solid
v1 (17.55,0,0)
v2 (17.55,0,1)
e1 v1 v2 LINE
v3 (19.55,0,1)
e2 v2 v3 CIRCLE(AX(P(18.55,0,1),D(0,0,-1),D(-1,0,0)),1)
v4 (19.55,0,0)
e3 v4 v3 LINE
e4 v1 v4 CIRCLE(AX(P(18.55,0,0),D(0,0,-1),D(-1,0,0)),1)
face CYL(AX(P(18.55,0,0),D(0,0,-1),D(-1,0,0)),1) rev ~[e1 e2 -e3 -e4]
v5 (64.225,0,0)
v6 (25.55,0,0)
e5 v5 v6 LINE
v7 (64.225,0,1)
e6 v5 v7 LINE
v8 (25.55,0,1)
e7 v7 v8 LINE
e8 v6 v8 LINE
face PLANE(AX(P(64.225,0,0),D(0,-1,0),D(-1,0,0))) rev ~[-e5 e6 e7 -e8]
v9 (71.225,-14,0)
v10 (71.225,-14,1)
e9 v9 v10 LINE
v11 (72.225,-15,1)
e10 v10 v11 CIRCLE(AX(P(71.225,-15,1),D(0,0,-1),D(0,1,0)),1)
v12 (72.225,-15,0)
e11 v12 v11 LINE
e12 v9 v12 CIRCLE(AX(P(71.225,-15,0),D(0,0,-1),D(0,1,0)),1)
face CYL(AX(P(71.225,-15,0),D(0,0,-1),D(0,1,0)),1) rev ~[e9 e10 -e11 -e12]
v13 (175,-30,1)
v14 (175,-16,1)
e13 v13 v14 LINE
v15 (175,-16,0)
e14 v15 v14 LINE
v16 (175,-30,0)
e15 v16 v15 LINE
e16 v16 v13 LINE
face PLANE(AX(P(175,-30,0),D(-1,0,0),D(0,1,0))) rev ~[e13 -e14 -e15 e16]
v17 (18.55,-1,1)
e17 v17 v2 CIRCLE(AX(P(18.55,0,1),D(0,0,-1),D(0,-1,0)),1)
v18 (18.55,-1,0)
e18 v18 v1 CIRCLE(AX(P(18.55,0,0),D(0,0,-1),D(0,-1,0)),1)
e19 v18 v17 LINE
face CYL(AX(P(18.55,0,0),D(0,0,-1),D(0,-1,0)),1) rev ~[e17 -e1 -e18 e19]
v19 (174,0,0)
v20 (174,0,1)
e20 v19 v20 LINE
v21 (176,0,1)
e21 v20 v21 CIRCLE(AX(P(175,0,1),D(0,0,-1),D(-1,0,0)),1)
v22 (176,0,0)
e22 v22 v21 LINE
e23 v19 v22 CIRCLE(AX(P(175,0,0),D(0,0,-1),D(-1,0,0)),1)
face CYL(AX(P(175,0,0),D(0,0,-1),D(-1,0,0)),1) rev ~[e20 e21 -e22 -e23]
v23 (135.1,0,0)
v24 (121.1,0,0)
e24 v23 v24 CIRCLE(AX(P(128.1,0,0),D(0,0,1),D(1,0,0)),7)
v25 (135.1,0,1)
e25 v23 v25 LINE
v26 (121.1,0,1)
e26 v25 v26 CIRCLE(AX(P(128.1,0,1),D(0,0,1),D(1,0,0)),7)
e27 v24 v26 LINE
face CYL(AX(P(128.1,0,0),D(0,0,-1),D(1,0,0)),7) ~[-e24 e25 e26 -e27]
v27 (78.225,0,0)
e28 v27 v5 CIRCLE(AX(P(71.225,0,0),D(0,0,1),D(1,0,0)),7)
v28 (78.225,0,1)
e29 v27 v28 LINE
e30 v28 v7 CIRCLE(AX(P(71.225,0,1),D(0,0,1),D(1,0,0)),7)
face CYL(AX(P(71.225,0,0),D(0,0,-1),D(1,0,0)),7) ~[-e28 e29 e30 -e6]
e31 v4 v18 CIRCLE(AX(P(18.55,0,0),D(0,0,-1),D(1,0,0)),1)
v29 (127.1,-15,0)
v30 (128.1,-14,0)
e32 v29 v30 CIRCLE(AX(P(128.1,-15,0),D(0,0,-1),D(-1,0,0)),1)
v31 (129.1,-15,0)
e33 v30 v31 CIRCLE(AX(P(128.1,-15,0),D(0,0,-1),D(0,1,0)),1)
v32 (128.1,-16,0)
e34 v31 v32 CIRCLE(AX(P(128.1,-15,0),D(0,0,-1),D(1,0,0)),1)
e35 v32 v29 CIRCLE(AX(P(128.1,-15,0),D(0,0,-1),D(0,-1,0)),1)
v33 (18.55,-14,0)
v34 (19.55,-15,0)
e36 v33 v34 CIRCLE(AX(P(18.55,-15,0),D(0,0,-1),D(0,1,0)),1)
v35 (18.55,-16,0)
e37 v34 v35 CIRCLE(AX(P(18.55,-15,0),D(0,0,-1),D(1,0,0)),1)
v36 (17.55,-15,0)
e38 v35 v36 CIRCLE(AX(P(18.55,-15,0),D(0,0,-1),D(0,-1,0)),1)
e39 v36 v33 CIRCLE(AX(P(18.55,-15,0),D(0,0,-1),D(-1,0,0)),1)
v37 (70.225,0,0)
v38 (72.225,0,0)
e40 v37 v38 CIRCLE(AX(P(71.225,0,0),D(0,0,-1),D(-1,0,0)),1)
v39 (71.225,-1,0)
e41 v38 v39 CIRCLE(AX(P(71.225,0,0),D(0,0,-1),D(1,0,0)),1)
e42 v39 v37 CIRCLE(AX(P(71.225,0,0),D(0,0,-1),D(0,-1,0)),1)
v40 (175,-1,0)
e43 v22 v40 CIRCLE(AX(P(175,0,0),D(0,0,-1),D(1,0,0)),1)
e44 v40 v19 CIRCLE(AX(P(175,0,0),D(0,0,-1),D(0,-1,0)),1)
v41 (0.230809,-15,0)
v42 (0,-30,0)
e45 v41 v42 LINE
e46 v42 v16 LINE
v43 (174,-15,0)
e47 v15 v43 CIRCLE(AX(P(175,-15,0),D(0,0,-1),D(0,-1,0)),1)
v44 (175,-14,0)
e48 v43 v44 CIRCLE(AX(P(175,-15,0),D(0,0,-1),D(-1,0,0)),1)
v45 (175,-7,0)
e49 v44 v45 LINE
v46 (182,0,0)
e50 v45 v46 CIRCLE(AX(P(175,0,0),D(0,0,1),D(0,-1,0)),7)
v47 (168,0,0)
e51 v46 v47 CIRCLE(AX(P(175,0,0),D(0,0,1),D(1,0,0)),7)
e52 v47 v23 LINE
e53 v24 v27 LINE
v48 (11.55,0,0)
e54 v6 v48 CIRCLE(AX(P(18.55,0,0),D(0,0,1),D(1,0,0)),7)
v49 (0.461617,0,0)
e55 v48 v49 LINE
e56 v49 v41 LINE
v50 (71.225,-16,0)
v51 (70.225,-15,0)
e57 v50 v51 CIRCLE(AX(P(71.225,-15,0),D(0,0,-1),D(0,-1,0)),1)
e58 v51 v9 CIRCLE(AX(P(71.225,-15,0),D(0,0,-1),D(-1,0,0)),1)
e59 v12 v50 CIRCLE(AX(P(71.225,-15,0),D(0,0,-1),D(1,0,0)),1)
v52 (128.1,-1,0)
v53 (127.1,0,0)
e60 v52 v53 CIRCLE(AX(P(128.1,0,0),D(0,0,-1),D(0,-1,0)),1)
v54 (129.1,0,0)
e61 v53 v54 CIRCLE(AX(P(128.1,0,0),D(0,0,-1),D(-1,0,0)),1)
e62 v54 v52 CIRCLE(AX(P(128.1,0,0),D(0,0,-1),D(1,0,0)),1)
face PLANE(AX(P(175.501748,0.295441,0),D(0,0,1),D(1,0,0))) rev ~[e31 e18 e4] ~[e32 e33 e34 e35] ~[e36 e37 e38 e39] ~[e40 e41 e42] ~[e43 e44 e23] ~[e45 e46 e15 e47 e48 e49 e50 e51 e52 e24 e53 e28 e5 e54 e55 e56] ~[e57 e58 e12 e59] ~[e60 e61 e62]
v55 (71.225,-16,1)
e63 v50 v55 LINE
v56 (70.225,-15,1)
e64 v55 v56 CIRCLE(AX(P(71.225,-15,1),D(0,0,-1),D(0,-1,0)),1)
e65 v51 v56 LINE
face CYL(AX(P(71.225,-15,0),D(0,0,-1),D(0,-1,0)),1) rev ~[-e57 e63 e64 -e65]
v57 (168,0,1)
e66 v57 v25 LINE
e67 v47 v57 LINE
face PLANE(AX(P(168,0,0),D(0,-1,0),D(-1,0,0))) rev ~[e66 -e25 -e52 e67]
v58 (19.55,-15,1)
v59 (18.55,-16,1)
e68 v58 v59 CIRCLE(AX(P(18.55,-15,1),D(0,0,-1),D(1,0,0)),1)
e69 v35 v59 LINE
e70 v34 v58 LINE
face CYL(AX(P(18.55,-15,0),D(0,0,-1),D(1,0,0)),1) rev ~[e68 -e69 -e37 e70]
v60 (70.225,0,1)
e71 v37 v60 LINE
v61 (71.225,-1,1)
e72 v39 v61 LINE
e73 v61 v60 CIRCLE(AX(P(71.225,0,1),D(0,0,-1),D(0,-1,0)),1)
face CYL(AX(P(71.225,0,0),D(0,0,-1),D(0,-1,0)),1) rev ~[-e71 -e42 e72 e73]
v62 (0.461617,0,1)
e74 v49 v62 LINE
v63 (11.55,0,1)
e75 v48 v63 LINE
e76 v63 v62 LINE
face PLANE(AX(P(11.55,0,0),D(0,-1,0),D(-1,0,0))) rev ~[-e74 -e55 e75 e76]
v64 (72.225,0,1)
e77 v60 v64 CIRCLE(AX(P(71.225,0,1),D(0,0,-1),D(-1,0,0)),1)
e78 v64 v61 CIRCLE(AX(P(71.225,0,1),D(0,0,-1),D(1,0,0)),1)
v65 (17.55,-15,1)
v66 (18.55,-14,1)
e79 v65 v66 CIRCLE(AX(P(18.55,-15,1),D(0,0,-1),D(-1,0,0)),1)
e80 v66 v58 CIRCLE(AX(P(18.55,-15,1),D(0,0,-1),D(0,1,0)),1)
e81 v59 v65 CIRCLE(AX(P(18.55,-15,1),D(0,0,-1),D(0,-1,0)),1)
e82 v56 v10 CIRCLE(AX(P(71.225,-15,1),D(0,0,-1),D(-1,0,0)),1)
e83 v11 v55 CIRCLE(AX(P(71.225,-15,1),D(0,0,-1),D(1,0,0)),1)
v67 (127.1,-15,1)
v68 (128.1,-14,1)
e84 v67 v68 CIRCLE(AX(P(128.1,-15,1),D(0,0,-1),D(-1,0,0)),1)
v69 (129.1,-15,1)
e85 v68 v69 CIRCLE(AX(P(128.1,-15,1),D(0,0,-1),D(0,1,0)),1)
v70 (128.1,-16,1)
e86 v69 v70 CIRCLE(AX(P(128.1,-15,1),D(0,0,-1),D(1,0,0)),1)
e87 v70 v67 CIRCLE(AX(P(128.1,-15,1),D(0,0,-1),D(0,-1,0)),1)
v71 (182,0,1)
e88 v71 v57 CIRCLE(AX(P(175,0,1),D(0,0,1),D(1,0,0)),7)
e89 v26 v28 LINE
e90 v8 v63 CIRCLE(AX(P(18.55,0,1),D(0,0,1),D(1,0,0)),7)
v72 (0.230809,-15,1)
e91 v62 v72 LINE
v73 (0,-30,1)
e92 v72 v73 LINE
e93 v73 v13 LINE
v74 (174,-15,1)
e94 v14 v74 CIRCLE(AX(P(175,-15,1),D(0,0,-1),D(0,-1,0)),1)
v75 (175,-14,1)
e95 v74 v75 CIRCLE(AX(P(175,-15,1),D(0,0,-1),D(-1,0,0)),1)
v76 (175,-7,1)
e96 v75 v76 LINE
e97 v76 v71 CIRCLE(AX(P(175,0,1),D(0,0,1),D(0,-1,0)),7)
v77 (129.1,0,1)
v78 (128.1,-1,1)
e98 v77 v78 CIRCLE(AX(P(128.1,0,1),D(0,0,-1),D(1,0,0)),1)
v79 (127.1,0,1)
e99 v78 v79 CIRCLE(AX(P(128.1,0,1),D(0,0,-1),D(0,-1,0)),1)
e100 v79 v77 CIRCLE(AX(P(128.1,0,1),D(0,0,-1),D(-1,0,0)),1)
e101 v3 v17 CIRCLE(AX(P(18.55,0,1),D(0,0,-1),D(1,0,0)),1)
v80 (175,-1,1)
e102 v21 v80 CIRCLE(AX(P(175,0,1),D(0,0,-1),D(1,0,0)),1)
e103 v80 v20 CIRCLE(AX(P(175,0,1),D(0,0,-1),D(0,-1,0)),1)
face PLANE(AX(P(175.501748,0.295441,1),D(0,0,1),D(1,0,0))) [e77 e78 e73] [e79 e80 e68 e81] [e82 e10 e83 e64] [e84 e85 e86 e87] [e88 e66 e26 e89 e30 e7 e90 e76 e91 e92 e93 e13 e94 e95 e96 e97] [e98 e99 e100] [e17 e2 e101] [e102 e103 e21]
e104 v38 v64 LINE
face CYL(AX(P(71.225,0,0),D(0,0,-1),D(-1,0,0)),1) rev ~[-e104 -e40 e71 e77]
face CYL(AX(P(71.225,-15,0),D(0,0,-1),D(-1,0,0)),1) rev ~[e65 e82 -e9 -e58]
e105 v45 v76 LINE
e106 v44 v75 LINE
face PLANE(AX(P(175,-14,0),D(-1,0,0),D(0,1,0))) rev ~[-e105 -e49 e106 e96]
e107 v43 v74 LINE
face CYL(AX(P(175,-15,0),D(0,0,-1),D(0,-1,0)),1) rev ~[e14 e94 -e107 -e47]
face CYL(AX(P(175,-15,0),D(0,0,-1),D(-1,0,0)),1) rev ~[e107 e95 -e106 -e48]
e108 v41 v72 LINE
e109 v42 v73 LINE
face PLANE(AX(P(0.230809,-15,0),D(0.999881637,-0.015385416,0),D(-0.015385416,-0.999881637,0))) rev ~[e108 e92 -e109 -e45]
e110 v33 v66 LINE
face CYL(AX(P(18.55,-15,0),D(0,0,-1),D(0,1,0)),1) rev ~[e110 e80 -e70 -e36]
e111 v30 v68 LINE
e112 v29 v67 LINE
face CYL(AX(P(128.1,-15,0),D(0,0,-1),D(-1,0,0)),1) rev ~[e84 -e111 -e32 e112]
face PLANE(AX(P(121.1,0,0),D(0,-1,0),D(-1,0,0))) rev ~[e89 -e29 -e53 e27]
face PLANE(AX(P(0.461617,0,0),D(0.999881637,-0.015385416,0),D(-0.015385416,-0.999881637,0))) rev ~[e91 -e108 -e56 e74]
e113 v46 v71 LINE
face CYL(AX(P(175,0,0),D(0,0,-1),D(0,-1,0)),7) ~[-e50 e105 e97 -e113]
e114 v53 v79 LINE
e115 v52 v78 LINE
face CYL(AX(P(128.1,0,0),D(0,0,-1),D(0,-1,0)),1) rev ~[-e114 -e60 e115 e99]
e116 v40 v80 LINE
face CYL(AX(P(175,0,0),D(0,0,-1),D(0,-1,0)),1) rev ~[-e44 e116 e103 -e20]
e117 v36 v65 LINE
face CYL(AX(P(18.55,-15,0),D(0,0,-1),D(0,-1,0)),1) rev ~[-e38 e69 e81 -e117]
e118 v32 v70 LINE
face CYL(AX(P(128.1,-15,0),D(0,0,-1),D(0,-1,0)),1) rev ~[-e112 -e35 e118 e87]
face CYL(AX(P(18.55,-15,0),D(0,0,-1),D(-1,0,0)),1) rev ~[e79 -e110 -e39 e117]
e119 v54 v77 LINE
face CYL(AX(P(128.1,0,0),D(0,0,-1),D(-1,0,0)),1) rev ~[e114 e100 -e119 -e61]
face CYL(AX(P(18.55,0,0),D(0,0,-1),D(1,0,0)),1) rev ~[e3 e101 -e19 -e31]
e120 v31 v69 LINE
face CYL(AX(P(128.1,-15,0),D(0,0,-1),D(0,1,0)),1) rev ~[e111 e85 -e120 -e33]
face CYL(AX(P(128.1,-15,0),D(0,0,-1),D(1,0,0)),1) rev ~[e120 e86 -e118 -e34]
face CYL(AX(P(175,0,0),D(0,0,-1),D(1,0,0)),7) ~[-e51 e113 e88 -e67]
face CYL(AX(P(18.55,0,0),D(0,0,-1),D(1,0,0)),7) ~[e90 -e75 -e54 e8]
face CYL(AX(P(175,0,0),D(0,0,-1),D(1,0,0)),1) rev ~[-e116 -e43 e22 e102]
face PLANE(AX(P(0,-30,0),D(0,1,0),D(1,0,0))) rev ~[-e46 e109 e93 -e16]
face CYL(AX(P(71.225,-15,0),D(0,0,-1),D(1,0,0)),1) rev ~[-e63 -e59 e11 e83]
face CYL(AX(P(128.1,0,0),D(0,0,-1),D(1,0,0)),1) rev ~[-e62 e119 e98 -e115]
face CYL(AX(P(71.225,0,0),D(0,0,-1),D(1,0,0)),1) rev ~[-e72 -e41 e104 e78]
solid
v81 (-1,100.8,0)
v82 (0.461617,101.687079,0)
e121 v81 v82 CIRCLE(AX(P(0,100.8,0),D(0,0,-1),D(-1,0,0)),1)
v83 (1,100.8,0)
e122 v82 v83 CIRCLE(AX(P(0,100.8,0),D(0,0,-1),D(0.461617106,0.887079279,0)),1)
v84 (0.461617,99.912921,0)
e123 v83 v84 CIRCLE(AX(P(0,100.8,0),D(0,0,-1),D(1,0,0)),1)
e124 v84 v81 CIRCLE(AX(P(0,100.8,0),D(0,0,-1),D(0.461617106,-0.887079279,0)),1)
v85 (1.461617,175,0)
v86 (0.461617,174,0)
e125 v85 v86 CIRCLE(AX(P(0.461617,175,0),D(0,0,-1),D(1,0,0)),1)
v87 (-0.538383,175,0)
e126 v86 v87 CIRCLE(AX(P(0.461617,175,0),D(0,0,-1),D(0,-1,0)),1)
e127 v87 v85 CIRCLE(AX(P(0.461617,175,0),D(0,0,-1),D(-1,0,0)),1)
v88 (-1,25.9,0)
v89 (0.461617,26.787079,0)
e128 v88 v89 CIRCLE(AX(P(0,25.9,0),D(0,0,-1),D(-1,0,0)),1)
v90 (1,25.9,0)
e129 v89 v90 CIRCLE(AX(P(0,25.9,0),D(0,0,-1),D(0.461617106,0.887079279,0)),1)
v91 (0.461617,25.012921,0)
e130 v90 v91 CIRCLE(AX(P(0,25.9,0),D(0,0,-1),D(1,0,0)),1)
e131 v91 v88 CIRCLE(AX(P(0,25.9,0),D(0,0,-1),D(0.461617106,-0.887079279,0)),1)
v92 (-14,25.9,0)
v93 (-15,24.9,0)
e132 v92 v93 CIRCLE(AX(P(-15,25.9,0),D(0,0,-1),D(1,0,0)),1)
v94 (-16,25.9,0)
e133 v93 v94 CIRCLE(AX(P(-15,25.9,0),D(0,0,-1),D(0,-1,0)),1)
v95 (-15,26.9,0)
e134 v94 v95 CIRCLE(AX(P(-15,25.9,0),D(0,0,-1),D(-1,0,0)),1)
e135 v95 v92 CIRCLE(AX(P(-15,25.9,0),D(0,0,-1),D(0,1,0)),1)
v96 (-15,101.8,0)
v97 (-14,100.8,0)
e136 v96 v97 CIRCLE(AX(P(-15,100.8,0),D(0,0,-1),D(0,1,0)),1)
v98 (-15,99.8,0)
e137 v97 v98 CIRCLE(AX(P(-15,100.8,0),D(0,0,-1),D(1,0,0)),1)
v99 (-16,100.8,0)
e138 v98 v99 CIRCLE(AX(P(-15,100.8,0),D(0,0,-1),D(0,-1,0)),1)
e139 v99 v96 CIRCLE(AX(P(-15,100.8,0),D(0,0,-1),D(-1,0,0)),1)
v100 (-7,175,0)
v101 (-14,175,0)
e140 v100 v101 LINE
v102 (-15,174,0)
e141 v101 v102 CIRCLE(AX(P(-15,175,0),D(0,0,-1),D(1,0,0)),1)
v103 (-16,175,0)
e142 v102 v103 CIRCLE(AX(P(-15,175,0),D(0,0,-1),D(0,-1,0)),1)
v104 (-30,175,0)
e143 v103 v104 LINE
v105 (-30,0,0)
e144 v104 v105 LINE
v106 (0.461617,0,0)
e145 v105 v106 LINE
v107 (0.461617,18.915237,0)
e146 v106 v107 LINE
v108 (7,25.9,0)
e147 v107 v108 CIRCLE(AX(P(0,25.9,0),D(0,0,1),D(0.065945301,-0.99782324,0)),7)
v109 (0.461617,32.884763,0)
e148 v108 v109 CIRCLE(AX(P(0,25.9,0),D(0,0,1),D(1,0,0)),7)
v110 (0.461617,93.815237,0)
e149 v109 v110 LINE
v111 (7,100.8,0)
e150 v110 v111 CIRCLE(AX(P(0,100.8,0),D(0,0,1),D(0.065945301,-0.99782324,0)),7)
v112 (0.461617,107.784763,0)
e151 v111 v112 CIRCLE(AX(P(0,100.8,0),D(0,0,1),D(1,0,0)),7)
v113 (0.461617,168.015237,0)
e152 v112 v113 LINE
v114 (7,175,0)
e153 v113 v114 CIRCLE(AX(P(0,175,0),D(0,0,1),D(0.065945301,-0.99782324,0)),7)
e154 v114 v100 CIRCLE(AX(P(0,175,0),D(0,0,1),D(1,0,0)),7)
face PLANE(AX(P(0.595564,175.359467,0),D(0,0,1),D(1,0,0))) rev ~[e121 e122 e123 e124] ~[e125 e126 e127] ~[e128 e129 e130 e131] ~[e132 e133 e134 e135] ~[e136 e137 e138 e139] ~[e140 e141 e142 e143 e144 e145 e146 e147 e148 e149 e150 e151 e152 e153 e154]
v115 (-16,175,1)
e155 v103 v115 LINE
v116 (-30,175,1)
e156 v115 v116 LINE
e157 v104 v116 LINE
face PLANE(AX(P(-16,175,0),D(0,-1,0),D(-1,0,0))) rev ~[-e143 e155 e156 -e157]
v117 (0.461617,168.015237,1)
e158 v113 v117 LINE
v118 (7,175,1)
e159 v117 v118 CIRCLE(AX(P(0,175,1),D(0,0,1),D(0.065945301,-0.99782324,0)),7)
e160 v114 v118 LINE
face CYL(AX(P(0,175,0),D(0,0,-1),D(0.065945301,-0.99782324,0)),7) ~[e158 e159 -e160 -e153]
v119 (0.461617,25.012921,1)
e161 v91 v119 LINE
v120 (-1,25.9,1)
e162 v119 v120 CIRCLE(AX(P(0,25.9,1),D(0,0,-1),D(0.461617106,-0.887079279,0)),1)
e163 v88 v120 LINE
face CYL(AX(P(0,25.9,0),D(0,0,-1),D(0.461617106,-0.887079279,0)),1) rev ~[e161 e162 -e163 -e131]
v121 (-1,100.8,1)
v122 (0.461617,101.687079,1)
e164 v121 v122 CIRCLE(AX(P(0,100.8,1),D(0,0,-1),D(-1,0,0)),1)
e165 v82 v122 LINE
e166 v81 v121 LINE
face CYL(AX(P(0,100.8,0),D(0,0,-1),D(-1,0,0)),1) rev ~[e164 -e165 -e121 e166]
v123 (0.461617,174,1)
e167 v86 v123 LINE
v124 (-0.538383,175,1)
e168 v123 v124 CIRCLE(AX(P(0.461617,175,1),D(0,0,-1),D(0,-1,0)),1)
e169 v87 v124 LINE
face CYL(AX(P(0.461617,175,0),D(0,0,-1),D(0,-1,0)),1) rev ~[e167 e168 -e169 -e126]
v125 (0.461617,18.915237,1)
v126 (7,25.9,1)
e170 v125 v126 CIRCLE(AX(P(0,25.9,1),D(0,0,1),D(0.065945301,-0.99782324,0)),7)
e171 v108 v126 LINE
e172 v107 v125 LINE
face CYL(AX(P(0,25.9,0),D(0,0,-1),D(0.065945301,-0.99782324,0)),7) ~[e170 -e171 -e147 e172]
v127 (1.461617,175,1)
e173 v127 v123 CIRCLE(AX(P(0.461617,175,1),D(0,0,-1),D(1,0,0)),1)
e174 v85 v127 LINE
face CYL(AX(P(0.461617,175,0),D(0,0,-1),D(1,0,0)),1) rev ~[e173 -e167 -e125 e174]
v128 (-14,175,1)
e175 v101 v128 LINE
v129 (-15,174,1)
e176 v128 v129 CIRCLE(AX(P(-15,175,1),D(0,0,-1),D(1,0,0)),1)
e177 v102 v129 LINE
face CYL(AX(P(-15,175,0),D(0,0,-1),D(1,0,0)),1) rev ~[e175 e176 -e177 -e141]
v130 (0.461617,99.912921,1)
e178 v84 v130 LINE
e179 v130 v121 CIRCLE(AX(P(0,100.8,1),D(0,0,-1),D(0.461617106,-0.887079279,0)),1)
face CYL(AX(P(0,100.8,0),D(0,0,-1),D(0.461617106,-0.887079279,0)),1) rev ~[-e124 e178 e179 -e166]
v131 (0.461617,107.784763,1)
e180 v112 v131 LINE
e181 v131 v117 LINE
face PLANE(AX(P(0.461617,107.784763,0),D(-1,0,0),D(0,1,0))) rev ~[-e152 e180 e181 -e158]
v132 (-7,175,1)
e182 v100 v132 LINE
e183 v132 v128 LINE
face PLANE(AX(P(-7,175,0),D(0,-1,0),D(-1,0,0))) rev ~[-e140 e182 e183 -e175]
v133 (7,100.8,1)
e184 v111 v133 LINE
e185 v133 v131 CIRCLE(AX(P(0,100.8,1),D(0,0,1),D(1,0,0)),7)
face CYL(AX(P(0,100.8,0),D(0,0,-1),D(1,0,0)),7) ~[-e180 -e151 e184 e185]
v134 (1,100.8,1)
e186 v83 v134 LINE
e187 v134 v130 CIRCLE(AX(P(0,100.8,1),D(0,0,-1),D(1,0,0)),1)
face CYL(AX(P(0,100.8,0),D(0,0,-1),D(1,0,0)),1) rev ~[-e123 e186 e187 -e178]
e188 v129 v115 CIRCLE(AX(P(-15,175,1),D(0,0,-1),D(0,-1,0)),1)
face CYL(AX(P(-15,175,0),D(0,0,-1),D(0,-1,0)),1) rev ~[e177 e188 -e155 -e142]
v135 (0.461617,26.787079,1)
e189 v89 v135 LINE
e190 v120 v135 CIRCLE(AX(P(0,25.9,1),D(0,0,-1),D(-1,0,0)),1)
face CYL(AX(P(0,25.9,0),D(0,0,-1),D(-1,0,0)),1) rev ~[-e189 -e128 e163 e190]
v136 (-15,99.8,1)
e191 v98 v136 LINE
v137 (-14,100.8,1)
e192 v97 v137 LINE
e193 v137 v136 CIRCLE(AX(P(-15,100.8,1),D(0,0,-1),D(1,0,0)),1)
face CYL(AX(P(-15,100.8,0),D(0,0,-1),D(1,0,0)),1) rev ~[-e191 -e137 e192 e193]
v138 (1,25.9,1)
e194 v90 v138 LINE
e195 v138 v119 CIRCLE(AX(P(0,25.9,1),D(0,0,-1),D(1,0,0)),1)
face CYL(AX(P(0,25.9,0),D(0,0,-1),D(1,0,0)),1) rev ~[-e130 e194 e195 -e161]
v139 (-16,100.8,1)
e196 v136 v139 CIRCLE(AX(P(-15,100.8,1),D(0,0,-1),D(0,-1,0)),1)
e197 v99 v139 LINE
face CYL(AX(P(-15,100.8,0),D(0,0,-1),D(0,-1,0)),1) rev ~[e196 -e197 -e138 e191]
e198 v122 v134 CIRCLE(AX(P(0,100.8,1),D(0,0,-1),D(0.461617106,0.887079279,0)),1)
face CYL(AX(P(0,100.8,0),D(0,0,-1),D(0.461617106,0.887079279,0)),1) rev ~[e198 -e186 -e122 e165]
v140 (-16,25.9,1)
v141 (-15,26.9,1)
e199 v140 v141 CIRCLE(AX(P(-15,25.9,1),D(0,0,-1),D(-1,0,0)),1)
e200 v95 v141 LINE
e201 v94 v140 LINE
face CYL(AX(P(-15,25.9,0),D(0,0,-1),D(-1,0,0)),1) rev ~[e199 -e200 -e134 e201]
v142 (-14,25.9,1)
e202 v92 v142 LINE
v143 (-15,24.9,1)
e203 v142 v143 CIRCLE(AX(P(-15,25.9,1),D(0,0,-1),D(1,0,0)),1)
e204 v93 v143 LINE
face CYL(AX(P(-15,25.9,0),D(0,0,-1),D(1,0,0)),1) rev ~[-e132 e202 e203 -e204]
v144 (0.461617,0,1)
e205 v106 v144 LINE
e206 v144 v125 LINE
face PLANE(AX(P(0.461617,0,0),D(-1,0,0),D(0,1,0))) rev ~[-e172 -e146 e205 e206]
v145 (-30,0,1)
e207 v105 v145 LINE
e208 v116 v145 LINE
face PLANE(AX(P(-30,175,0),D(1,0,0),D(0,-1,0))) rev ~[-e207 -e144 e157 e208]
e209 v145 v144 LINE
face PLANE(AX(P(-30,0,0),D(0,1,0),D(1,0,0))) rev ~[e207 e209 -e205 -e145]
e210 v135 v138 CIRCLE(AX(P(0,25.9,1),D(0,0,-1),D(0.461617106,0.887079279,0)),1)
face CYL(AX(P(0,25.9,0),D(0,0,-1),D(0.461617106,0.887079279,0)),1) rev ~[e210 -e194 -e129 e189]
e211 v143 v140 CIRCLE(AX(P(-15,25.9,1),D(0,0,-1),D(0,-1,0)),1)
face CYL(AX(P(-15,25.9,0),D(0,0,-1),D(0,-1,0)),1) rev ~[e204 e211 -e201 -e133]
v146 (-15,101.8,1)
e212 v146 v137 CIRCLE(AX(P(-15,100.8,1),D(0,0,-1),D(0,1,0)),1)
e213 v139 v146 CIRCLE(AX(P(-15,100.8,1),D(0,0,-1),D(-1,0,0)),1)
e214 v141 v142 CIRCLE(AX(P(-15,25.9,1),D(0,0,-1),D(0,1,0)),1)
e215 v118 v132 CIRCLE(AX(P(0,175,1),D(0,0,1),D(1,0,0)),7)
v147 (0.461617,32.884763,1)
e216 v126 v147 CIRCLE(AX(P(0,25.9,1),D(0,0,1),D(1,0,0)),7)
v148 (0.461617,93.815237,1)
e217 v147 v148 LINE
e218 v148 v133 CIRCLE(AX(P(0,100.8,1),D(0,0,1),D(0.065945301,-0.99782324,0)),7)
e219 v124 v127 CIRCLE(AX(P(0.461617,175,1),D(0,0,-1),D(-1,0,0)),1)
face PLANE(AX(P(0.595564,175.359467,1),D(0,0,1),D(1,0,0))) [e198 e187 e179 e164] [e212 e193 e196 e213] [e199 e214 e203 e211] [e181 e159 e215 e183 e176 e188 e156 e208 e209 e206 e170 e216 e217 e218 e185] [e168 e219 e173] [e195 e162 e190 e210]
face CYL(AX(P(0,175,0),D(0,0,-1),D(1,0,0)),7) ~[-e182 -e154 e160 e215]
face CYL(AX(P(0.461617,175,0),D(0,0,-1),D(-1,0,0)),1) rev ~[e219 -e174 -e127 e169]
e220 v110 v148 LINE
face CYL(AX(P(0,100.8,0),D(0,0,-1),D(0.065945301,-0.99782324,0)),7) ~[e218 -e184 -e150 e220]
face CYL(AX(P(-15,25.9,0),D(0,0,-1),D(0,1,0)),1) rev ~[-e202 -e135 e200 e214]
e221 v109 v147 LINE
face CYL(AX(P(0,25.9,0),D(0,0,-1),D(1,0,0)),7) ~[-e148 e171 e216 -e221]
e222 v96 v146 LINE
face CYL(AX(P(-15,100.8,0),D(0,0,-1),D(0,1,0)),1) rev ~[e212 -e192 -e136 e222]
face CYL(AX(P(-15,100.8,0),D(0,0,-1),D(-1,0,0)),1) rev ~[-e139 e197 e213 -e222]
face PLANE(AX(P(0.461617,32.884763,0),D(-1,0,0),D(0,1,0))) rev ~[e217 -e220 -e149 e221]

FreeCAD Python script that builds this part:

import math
import FreeCAD as App
import Part
import Sketcher
from FreeCAD import Vector
Q = App.Units.Quantity

doc = App.newDocument("Part")
body = doc.addObject("PartDesign::Body", "Body")

# Sketch on XY plane
sketch1 = body.newObject("Sketcher::SketchObject", "Sketch")
sketch1.AttachmentSupport = (doc.getObject("XY_Plane"), [""])
sketch1.MapMode = "FlatFace"
sketch1.addGeometry([
    Part.ArcOfCircle(Part.Circle(Vector(175, 0, 0), Vector(0, 0, 1), 7), math.radians(0), math.radians(180)),  # 0
    Part.LineSegment(Vector(168, 0, 0), Vector(135.1, 0, 0)),  # 1
    Part.ArcOfCircle(Part.Circle(Vector(128.1, 0, 0), Vector(0, 0, 1), 7), math.radians(0), math.radians(180)),  # 2
    Part.LineSegment(Vector(121.1, 0, 0), Vector(78.2, 0, 0)),  # 3
    Part.ArcOfCircle(Part.Circle(Vector(71.2, 0, 0), Vector(0, 0, 1), 7), math.radians(0), math.radians(180)),  # 4
    Part.LineSegment(Vector(64.2, 0, 0), Vector(25.6, 0, 0)),  # 5
    Part.ArcOfCircle(Part.Circle(Vector(18.6, 0, 0), Vector(0, 0, 1), 7), math.radians(0), math.radians(180)),  # 6
    Part.LineSegment(Vector(11.6, 0, 0), Vector(0.5, 0, 0)),  # 7
    Part.LineSegment(Vector(0.5, 0, 0), Vector(0.2, -15, 0)),  # 8
    Part.LineSegment(Vector(0.2, -15, 0), Vector(0, -30, 0)),  # 9
    Part.LineSegment(Vector(0, -30, 0), Vector(175, -30, 0)),  # 10
    Part.LineSegment(Vector(175, -30, 0), Vector(175, -16, 0)),  # 11
    Part.ArcOfCircle(Part.Circle(Vector(175, -15, 0), Vector(0, 0, 1), 1), math.radians(180), math.radians(270)),  # 12
    Part.ArcOfCircle(Part.Circle(Vector(175, -15, 0), Vector(0, 0, 1), 1), math.radians(90), math.radians(180)),  # 13
    Part.LineSegment(Vector(175, -14, 0), Vector(175, -7, 0)),  # 14
    Part.ArcOfCircle(Part.Circle(Vector(175, 0, 0), Vector(0, 0, 1), 7), math.radians(-90), math.radians(0)),  # 15
    Part.ArcOfCircle(Part.Circle(Vector(128.1, -15, 0), Vector(0, 0, 1), 1), math.radians(0), math.radians(90)),  # 16
    Part.ArcOfCircle(Part.Circle(Vector(128.1, -15, 0), Vector(0, 0, 1), 1), math.radians(-90), math.radians(0)),  # 17
    Part.ArcOfCircle(Part.Circle(Vector(128.1, -15, 0), Vector(0, 0, 1), 1), math.radians(180), math.radians(270)),  # 18
    Part.ArcOfCircle(Part.Circle(Vector(128.1, -15, 0), Vector(0, 0, 1), 1), math.radians(90), math.radians(180)),  # 19
    Part.ArcOfCircle(Part.Circle(Vector(71.2, -15, 0), Vector(0, 0, 1), 1), math.radians(-90), math.radians(0)),  # 20
    Part.ArcOfCircle(Part.Circle(Vector(71.2, -15, 0), Vector(0, 0, 1), 1), math.radians(180), math.radians(270)),  # 21
    Part.ArcOfCircle(Part.Circle(Vector(71.2, -15, 0), Vector(0, 0, 1), 1), math.radians(90), math.radians(180)),  # 22
    Part.ArcOfCircle(Part.Circle(Vector(71.2, -15, 0), Vector(0, 0, 1), 1), math.radians(0), math.radians(90)),  # 23
    Part.ArcOfCircle(Part.Circle(Vector(18.6, -15, 0), Vector(0, 0, 1), 1), math.radians(-90), math.radians(0)),  # 24
    Part.ArcOfCircle(Part.Circle(Vector(18.6, -15, 0), Vector(0, 0, 1), 1), math.radians(180), math.radians(270)),  # 25
    Part.ArcOfCircle(Part.Circle(Vector(18.6, -15, 0), Vector(0, 0, 1), 1), math.radians(90), math.radians(180)),  # 26
    Part.ArcOfCircle(Part.Circle(Vector(18.6, -15, 0), Vector(0, 0, 1), 1), math.radians(0), math.radians(90)),  # 27
    Part.ArcOfCircle(Part.Circle(Vector(175, 0, 0), Vector(0, 0, 1), 1), math.radians(0), math.radians(180)),  # 28
    Part.ArcOfCircle(Part.Circle(Vector(175, 0, 0), Vector(0, 0, 1), 1), math.radians(-90), math.radians(0)),  # 29
    Part.ArcOfCircle(Part.Circle(Vector(175, 0, 0), Vector(0, 0, 1), 1), math.radians(180), math.radians(270)),  # 30
    Part.ArcOfCircle(Part.Circle(Vector(128.1, 0, 0), Vector(0, 0, 1), 1), math.radians(-90), math.radians(0)),  # 31
    Part.ArcOfCircle(Part.Circle(Vector(128.1, 0, 0), Vector(0, 0, 1), 1), math.radians(180), math.radians(270)),  # 32
    Part.ArcOfCircle(Part.Circle(Vector(128.1, 0, 0), Vector(0, 0, 1), 1), math.radians(0), math.radians(180)),  # 33
    Part.ArcOfCircle(Part.Circle(Vector(18.6, 0, 0), Vector(0, 0, 1), 1), math.radians(-90), math.radians(0)),  # 34
    Part.ArcOfCircle(Part.Circle(Vector(18.6, 0, 0), Vector(0, 0, 1), 1), math.radians(180), math.radians(270)),  # 35
    Part.ArcOfCircle(Part.Circle(Vector(18.6, 0, 0), Vector(0, 0, 1), 1), math.radians(0), math.radians(180)),  # 36
    Part.ArcOfCircle(Part.Circle(Vector(71.2, 0, 0), Vector(0, 0, 1), 1), math.radians(-90), math.radians(0)),  # 37
    Part.ArcOfCircle(Part.Circle(Vector(71.2, 0, 0), Vector(0, 0, 1), 1), math.radians(180), math.radians(270)),  # 38
    Part.ArcOfCircle(Part.Circle(Vector(71.2, 0, 0), Vector(0, 0, 1), 1), math.radians(0), math.radians(180)),  # 39
], False)
sketch1.addConstraint([
    Sketcher.Constraint("Coincident", 0, 2, 1, 1),
    Sketcher.Constraint("Coincident", 1, 2, 2, 1),
    Sketcher.Constraint("Coincident", 2, 2, 3, 1),
    Sketcher.Constraint("Coincident", 3, 2, 4, 1),
    Sketcher.Constraint("Coincident", 4, 2, 5, 1),
    Sketcher.Constraint("Coincident", 5, 2, 6, 1),
    Sketcher.Constraint("Coincident", 6, 2, 7, 1),
    Sketcher.Constraint("Coincident", 7, 2, 8, 1),
    Sketcher.Constraint("Coincident", 8, 2, 9, 1),
    Sketcher.Constraint("Coincident", 9, 2, 10, 1),
    Sketcher.Constraint("Coincident", 10, 2, 11, 1),
    Sketcher.Constraint("Coincident", 11, 2, 12, 2),
    Sketcher.Constraint("Tangent", 12, 1, 13, 2),
    Sketcher.Constraint("Coincident", 13, 1, 14, 1),
    Sketcher.Constraint("Coincident", 14, 2, 15, 1),
    Sketcher.Constraint("Tangent", 15, 2, 0, 1),
    Sketcher.Constraint("Tangent", 16, 1, 17, 2),
    Sketcher.Constraint("Tangent", 17, 1, 18, 2),
    Sketcher.Constraint("Tangent", 18, 1, 19, 2),
    Sketcher.Constraint("Tangent", 19, 1, 16, 2),
    Sketcher.Constraint("Tangent", 20, 1, 21, 2),
    Sketcher.Constraint("Tangent", 21, 1, 22, 2),
    Sketcher.Constraint("Tangent", 22, 1, 23, 2),
    Sketcher.Constraint("Tangent", 23, 1, 20, 2),
    Sketcher.Constraint("Tangent", 24, 1, 25, 2),
    Sketcher.Constraint("Tangent", 25, 1, 26, 2),
    Sketcher.Constraint("Tangent", 26, 1, 27, 2),
    Sketcher.Constraint("Tangent", 27, 1, 24, 2),
    Sketcher.Constraint("Tangent", 28, 1, 29, 2),
    Sketcher.Constraint("Tangent", 29, 1, 30, 2),
    Sketcher.Constraint("Tangent", 30, 1, 28, 2),
    Sketcher.Constraint("Tangent", 31, 1, 32, 2),
    Sketcher.Constraint("Tangent", 32, 1, 33, 2),
    Sketcher.Constraint("Tangent", 33, 1, 31, 2),
    Sketcher.Constraint("Tangent", 34, 1, 35, 2),
    Sketcher.Constraint("Tangent", 35, 1, 36, 2),
    Sketcher.Constraint("Tangent", 36, 1, 34, 2),
    Sketcher.Constraint("Tangent", 37, 1, 38, 2),
    Sketcher.Constraint("Tangent", 38, 1, 39, 2),
    Sketcher.Constraint("Tangent", 39, 1, 37, 2),
    Sketcher.Constraint("Horizontal", 1),
    Sketcher.Constraint("Horizontal", 3),
    Sketcher.Constraint("Horizontal", 5),
    Sketcher.Constraint("Horizontal", 7),
    Sketcher.Constraint("Horizontal", 10),
    Sketcher.Constraint("Vertical", 11),
    Sketcher.Constraint("Vertical", 14),
    Sketcher.Constraint("Coincident", 28, 3, 0, 3),
    Sketcher.Constraint("Coincident", 31, 3, 2, 3),
    Sketcher.Constraint("Coincident", 34, 3, 6, 3),
    Sketcher.Constraint("Coincident", 37, 3, 4, 3),
    Sketcher.Constraint("Equal", 0, 2),
    Sketcher.Constraint("Equal", 2, 4),
    Sketcher.Constraint("Equal", 4, 6),
    Sketcher.Constraint("Equal", 12, 13),
    Sketcher.Constraint("Equal", 6, 15),
    Sketcher.Constraint("Equal", 13, 16),
    Sketcher.Constraint("Equal", 16, 17),
    Sketcher.Constraint("Equal", 19, 20),
    Sketcher.Constraint("Equal", 20, 21),
    Sketcher.Constraint("Equal", 23, 24),
    Sketcher.Constraint("Equal", 24, 25),
    Sketcher.Constraint("Equal", 27, 28),
    Sketcher.Constraint("Equal", 30, 31),
    Sketcher.Constraint("Equal", 33, 34),
    Sketcher.Constraint("Equal", 36, 37),
    Sketcher.Constraint("PointOnObject", 0, 3, -1),
    Sketcher.Constraint("PointOnObject", 2, 3, -1),
    Sketcher.Constraint("PointOnObject", 4, 3, -1),
    Sketcher.Constraint("PointOnObject", 6, 3, -1),
    Sketcher.Constraint("PointOnObject", 0, 2, -1),
    Sketcher.Constraint("PointOnObject", 2, 2, -1),
    Sketcher.Constraint("PointOnObject", 4, 2, -1),
    Sketcher.Constraint("PointOnObject", 6, 2, -1),
    Sketcher.Constraint("PointOnObject", 9, 2, -2),
    Sketcher.Constraint("PointOnObject", 15, 2, -1),
    Sketcher.Constraint("PointOnObject", 28, 1, -1),
    Sketcher.Constraint("PointOnObject", 30, 1, -1),
    Sketcher.Constraint("PointOnObject", 32, 1, -1),
    Sketcher.Constraint("PointOnObject", 33, 1, -1),
    Sketcher.Constraint("PointOnObject", 35, 1, -1),
    Sketcher.Constraint("PointOnObject", 36, 1, -1),
    Sketcher.Constraint("PointOnObject", 38, 1, -1),
    Sketcher.Constraint("PointOnObject", 39, 1, -1),
    Sketcher.Constraint("Parallel", 8, 9),
    Sketcher.Constraint("Horizontal", 13, 3, 16, 3),
    Sketcher.Constraint("Horizontal", 19, 3, 20, 3),
    Sketcher.Constraint("Horizontal", 23, 3, 24, 3),
    Sketcher.Constraint("Horizontal", 27, 3, 8, 2),
    Sketcher.Constraint("Horizontal", 8, 2, 12, 1),
    Sketcher.Constraint("Horizontal", 12, 1, 16, 1),
    Sketcher.Constraint("Horizontal", 16, 1, 18, 1),
    Sketcher.Constraint("Horizontal", 18, 1, 21, 1),
    Sketcher.Constraint("Horizontal", 21, 1, 23, 1),
    Sketcher.Constraint("Horizontal", 23, 1, 25, 1),
    Sketcher.Constraint("Horizontal", 25, 1, 27, 1),
    Sketcher.Constraint("Vertical", 0, 3, 12, 3),
    Sketcher.Constraint("Vertical", 2, 3, 16, 3),
    Sketcher.Constraint("Vertical", 4, 3, 20, 3),
    Sketcher.Constraint("Vertical", 6, 3, 24, 3),
    Sketcher.Constraint("Vertical", 30, 3, 10, 2),
    Sketcher.Constraint("Vertical", 11, 2, 13, 1),
    Sketcher.Constraint("Vertical", 33, 3, 17, 1),
    Sketcher.Constraint("Vertical", 17, 1, 19, 1),
    Sketcher.Constraint("Vertical", 39, 3, 20, 1),
    Sketcher.Constraint("Vertical", 20, 1, 22, 1),
    Sketcher.Constraint("Vertical", 36, 3, 24, 1),
    Sketcher.Constraint("Vertical", 24, 1, 26, 1),
    Sketcher.Constraint("Vertical", 14, 2, 29, 1),
    Sketcher.Constraint("Vertical", 19, 1, 31, 1),
    Sketcher.Constraint("Vertical", 26, 1, 34, 1),
    Sketcher.Constraint("Vertical", 22, 1, 37, 1),
    Sketcher.Constraint("Equal", 8, 9),
    Sketcher.Constraint("Radius", 0, Q("7 mm")),
    Sketcher.Constraint("Radius", 12, Q("1 mm")),
    Sketcher.Constraint("DistanceX", 10, 1, 10, 2, Q("175 mm")),
    Sketcher.Constraint("DistanceY", 11, 1, 11, 2, Q("14 mm")),
    Sketcher.Constraint("DistanceX", 1, 2, 1, 1, Q("32.9 mm")),
    Sketcher.Constraint("DistanceX", 3, 2, 3, 1, Q("42.875 mm")),
    Sketcher.Constraint("DistanceX", 5, 2, 5, 1, Q("38.675 mm")),
    Sketcher.Constraint("DistanceX", 7, 2, 7, 1, Q("11.088383 mm")),
])
pad1 = body.newObject("PartDesign::Pad", "Pad")
pad1.Profile = sketch1
pad1.Length = 1
body2 = doc.addObject("PartDesign::Body", "Body001")

# Sketch on XY plane
sketch2 = body2.newObject("Sketcher::SketchObject", "Sketch001")
sketch2.AttachmentSupport = (doc.getObject("XY_Plane001"), [""])
sketch2.MapMode = "FlatFace"
sketch2.addGeometry([
    Part.ArcOfCircle(Part.Circle(Vector(0, 175, 0), Vector(0, 0, 1), 7), math.radians(-86), math.radians(0)),  # 0
    Part.ArcOfCircle(Part.Circle(Vector(0, 175, 0), Vector(0, 0, 1), 7), math.radians(0), math.radians(180)),  # 1
    Part.LineSegment(Vector(-7, 175, 0), Vector(-14, 175, 0)),  # 2
    Part.ArcOfCircle(Part.Circle(Vector(-15, 175, 0), Vector(0, 0, 1), 1), math.radians(-90), math.radians(0)),  # 3
    Part.ArcOfCircle(Part.Circle(Vector(-15, 175, 0), Vector(0, 0, 1), 1), math.radians(180), math.radians(270)),  # 4
    Part.LineSegment(Vector(-16, 175, 0), Vector(-30, 175, 0)),  # 5
    Part.LineSegment(Vector(-30, 175, 0), Vector(-30, 0, 0)),  # 6
    Part.LineSegment(Vector(-30, 0, 0), Vector(0.5, 0, 0)),  # 7
    Part.LineSegment(Vector(0.5, 0, 0), Vector(0.5, 18.9, 0)),  # 8
    Part.ArcOfCircle(Part.Circle(Vector(0, 25.9, 0), Vector(0, 0, 1), 7), math.radians(-86), math.radians(0)),  # 9
    Part.ArcOfCircle(Part.Circle(Vector(0, 25.9, 0), Vector(0, 0, 1), 7), math.radians(0), math.radians(86)),  # 10
    Part.LineSegment(Vector(0.5, 32.9, 0), Vector(0.5, 93.8, 0)),  # 11
    Part.ArcOfCircle(Part.Circle(Vector(0, 100.8, 0), Vector(0, 0, 1), 7), math.radians(-86), math.radians(0)),  # 12
    Part.ArcOfCircle(Part.Circle(Vector(0, 100.8, 0), Vector(0, 0, 1), 7), math.radians(0), math.radians(86)),  # 13
    Part.LineSegment(Vector(0.5, 107.8, 0), Vector(0.5, 168, 0)),  # 14
    Part.ArcOfCircle(Part.Circle(Vector(-15, 25.9, 0), Vector(0, 0, 1), 1), math.radians(-90), math.radians(0)),  # 15
    Part.ArcOfCircle(Part.Circle(Vector(-15, 25.9, 0), Vector(0, 0, 1), 1), math.radians(180), math.radians(270)),  # 16
    Part.ArcOfCircle(Part.Circle(Vector(-15, 25.9, 0), Vector(0, 0, 1), 1), math.radians(90), math.radians(180)),  # 17
    Part.ArcOfCircle(Part.Circle(Vector(-15, 25.9, 0), Vector(0, 0, 1), 1), math.radians(0), math.radians(90)),  # 18
    Part.ArcOfCircle(Part.Circle(Vector(-15, 100.8, 0), Vector(0, 0, 1), 1), math.radians(180), math.radians(270)),  # 19
    Part.ArcOfCircle(Part.Circle(Vector(-15, 100.8, 0), Vector(0, 0, 1), 1), math.radians(90), math.radians(180)),  # 20
    Part.ArcOfCircle(Part.Circle(Vector(-15, 100.8, 0), Vector(0, 0, 1), 1), math.radians(0), math.radians(90)),  # 21
    Part.ArcOfCircle(Part.Circle(Vector(-15, 100.8, 0), Vector(0, 0, 1), 1), math.radians(-90), math.radians(0)),  # 22
    Part.ArcOfCircle(Part.Circle(Vector(0.5, 175, 0), Vector(0, 0, 1), 1), math.radians(0), math.radians(180)),  # 23
    Part.ArcOfCircle(Part.Circle(Vector(0.5, 175, 0), Vector(0, 0, 1), 1), math.radians(-90), math.radians(0)),  # 24
    Part.ArcOfCircle(Part.Circle(Vector(0.5, 175, 0), Vector(0, 0, 1), 1), math.radians(180), math.radians(270)),  # 25
    Part.ArcOfCircle(Part.Circle(Vector(0, 100.8, 0), Vector(0, 0, 1), 1), math.radians(180), math.radians(297)),  # 26
    Part.ArcOfCircle(Part.Circle(Vector(0, 100.8, 0), Vector(0, 0, 1), 1), math.radians(63), math.radians(180)),  # 27
    Part.ArcOfCircle(Part.Circle(Vector(0, 100.8, 0), Vector(0, 0, 1), 1), math.radians(0), math.radians(63)),  # 28
    Part.ArcOfCircle(Part.Circle(Vector(0, 100.8, 0), Vector(0, 0, 1), 1), math.radians(-63), math.radians(0)),  # 29
    Part.ArcOfCircle(Part.Circle(Vector(0, 25.9, 0), Vector(0, 0, 1), 1), math.radians(180), math.radians(297)),  # 30
    Part.ArcOfCircle(Part.Circle(Vector(0, 25.9, 0), Vector(0, 0, 1), 1), math.radians(63), math.radians(180)),  # 31
    Part.ArcOfCircle(Part.Circle(Vector(0, 25.9, 0), Vector(0, 0, 1), 1), math.radians(0), math.radians(63)),  # 32
    Part.ArcOfCircle(Part.Circle(Vector(0, 25.9, 0), Vector(0, 0, 1), 1), math.radians(-63), math.radians(0)),  # 33
], False)
sketch2.addConstraint([
    Sketcher.Constraint("Tangent", 0, 2, 1, 1),
    Sketcher.Constraint("Coincident", 1, 2, 2, 1),
    Sketcher.Constraint("Coincident", 2, 2, 3, 2),
    Sketcher.Constraint("Tangent", 3, 1, 4, 2),
    Sketcher.Constraint("Coincident", 4, 1, 5, 1),
    Sketcher.Constraint("Coincident", 5, 2, 6, 1),
    Sketcher.Constraint("Coincident", 6, 2, 7, 1),
    Sketcher.Constraint("Coincident", 7, 2, 8, 1),
    Sketcher.Constraint("Coincident", 8, 2, 9, 1),
    Sketcher.Constraint("Tangent", 9, 2, 10, 1),
    Sketcher.Constraint("Coincident", 10, 2, 11, 1),
    Sketcher.Constraint("Coincident", 11, 2, 12, 1),
    Sketcher.Constraint("Tangent", 12, 2, 13, 1),
    Sketcher.Constraint("Coincident", 13, 2, 14, 1),
    Sketcher.Constraint("Coincident", 14, 2, 0, 1),
    Sketcher.Constraint("Tangent", 15, 1, 16, 2),
    Sketcher.Constraint("Tangent", 16, 1, 17, 2),
    Sketcher.Constraint("Tangent", 17, 1, 18, 2),
    Sketcher.Constraint("Tangent", 18, 1, 15, 2),
    Sketcher.Constraint("Tangent", 19, 1, 20, 2),
    Sketcher.Constraint("Tangent", 20, 1, 21, 2),
    Sketcher.Constraint("Tangent", 21, 1, 22, 2),
    Sketcher.Constraint("Tangent", 22, 1, 19, 2),
    Sketcher.Constraint("Tangent", 23, 1, 24, 2),
    Sketcher.Constraint("Tangent", 24, 1, 25, 2),
    Sketcher.Constraint("Tangent", 25, 1, 23, 2),
    Sketcher.Constraint("Tangent", 26, 1, 27, 2),
    Sketcher.Constraint("Tangent", 27, 1, 28, 2),
    Sketcher.Constraint("Tangent", 28, 1, 29, 2),
    Sketcher.Constraint("Tangent", 29, 1, 26, 2),
    Sketcher.Constraint("Tangent", 30, 1, 31, 2),
    Sketcher.Constraint("Tangent", 31, 1, 32, 2),
    Sketcher.Constraint("Tangent", 32, 1, 33, 2),
    Sketcher.Constraint("Tangent", 33, 1, 30, 2),
    Sketcher.Constraint("Horizontal", 2),
    Sketcher.Constraint("Horizontal", 5),
    Sketcher.Constraint("Vertical", 6),
    Sketcher.Constraint("Horizontal", 7),
    Sketcher.Constraint("Vertical", 8),
    Sketcher.Constraint("Vertical", 11),
    Sketcher.Constraint("Vertical", 14),
    Sketcher.Constraint("Coincident", 26, 3, 12, 3),
    Sketcher.Constraint("Coincident", 30, 3, 9, 3),
    Sketcher.Constraint("Equal", 0, 1),
    Sketcher.Constraint("Equal", 3, 4),
    Sketcher.Constraint("Equal", 1, 9),
    Sketcher.Constraint("Equal", 9, 10),
    Sketcher.Constraint("Equal", 10, 12),
    Sketcher.Constraint("Equal", 12, 13),
    Sketcher.Constraint("Equal", 4, 15),
    Sketcher.Constraint("Equal", 15, 16),
    Sketcher.Constraint("Equal", 18, 19),
    Sketcher.Constraint("Equal", 19, 20),
    Sketcher.Constraint("Equal", 22, 23),
    Sketcher.Constraint("Equal", 25, 26),
    Sketcher.Constraint("Equal", 26, 27),
    Sketcher.Constraint("Equal", 29, 30),
    Sketcher.Constraint("Equal", 30, 31),
    Sketcher.Constraint("Symmetric", 0, 2, 1, 2, -2),
    Sketcher.Constraint("Symmetric", 26, 1, 28, 1, -2),
    Sketcher.Constraint("Symmetric", 30, 1, 32, 1, -2),
    Sketcher.Constraint("PointOnObject", 6, 2, -1),
    Sketcher.Constraint("Horizontal", 1, 3, 3, 3),
    Sketcher.Constraint("Horizontal", 10, 3, 15, 3),
    Sketcher.Constraint("Horizontal", 13, 3, 19, 3),
    Sketcher.Constraint("Horizontal", 4, 3, 23, 3),
    Sketcher.Constraint("Horizontal", 25, 3, 0, 2),
    Sketcher.Constraint("Horizontal", 2, 2, 4, 1),
    Sketcher.Constraint("Horizontal", 33, 3, 9, 2),
    Sketcher.Constraint("Horizontal", 29, 3, 12, 2),
    Sketcher.Constraint("Horizontal", 9, 2, 16, 1),
    Sketcher.Constraint("Horizontal", 16, 1, 18, 1),
    Sketcher.Constraint("Horizontal", 12, 2, 19, 1),
    Sketcher.Constraint("Horizontal", 19, 1, 21, 1),
    Sketcher.Constraint("Horizontal", 5, 2, 23, 1),
    Sketcher.Constraint("Horizontal", 23, 1, 25, 1),
    Sketcher.Constraint("Horizontal", 21, 1, 26, 1),
    Sketcher.Constraint("Horizontal", 18, 1, 30, 1),
    Sketcher.Constraint("Vertical", 4, 3, 15, 3),
    Sketcher.Constraint("Vertical", 18, 3, 19, 3),
    Sketcher.Constraint("Vertical", 22, 3, 3, 1),
    Sketcher.Constraint("Vertical", 25, 3, 7, 2),
    Sketcher.Constraint("Vertical", 8, 2, 10, 2),
    Sketcher.Constraint("Vertical", 11, 2, 13, 2),
    Sketcher.Constraint("Vertical", 3, 1, 15, 1),
    Sketcher.Constraint("Vertical", 15, 1, 17, 1),
    Sketcher.Constraint("Vertical", 17, 1, 20, 1),
    Sketcher.Constraint("Vertical", 20, 1, 22, 1),
    Sketcher.Constraint("Vertical", 14, 2, 24, 1),
    Sketcher.Constraint("Vertical", 24, 1, 27, 1),
    Sketcher.Constraint("Vertical", 27, 1, 29, 1),
    Sketcher.Constraint("Vertical", 29, 1, 31, 1),
    Sketcher.Constraint("Vertical", 31, 1, 33, 1),
    Sketcher.Constraint("Radius", 0, Q("7 mm")),
    Sketcher.Constraint("Radius", 3, Q("1 mm")),
    Sketcher.Constraint("DistanceX", 2, 2, 2, 1, Q("7 mm")),
    Sketcher.Constraint("DistanceX", 5, 2, 5, 1, Q("14 mm")),
    Sketcher.Constraint("DistanceY", 6, 2, 6, 1, Q("175 mm")),
    Sketcher.Constraint("DistanceY", -1, 1, 9, 3, Q("25.9 mm")),
    Sketcher.Constraint("DistanceY", -1, 1, 12, 3, Q("100.8 mm")),
    Sketcher.Constraint("DistanceX", 7, 1, 7, 2, Q("30.461617 mm")),
])
pad2 = body2.newObject("PartDesign::Pad", "Pad001")
pad2.Profile = sketch2
pad2.Length = 1

doc.recompute()
